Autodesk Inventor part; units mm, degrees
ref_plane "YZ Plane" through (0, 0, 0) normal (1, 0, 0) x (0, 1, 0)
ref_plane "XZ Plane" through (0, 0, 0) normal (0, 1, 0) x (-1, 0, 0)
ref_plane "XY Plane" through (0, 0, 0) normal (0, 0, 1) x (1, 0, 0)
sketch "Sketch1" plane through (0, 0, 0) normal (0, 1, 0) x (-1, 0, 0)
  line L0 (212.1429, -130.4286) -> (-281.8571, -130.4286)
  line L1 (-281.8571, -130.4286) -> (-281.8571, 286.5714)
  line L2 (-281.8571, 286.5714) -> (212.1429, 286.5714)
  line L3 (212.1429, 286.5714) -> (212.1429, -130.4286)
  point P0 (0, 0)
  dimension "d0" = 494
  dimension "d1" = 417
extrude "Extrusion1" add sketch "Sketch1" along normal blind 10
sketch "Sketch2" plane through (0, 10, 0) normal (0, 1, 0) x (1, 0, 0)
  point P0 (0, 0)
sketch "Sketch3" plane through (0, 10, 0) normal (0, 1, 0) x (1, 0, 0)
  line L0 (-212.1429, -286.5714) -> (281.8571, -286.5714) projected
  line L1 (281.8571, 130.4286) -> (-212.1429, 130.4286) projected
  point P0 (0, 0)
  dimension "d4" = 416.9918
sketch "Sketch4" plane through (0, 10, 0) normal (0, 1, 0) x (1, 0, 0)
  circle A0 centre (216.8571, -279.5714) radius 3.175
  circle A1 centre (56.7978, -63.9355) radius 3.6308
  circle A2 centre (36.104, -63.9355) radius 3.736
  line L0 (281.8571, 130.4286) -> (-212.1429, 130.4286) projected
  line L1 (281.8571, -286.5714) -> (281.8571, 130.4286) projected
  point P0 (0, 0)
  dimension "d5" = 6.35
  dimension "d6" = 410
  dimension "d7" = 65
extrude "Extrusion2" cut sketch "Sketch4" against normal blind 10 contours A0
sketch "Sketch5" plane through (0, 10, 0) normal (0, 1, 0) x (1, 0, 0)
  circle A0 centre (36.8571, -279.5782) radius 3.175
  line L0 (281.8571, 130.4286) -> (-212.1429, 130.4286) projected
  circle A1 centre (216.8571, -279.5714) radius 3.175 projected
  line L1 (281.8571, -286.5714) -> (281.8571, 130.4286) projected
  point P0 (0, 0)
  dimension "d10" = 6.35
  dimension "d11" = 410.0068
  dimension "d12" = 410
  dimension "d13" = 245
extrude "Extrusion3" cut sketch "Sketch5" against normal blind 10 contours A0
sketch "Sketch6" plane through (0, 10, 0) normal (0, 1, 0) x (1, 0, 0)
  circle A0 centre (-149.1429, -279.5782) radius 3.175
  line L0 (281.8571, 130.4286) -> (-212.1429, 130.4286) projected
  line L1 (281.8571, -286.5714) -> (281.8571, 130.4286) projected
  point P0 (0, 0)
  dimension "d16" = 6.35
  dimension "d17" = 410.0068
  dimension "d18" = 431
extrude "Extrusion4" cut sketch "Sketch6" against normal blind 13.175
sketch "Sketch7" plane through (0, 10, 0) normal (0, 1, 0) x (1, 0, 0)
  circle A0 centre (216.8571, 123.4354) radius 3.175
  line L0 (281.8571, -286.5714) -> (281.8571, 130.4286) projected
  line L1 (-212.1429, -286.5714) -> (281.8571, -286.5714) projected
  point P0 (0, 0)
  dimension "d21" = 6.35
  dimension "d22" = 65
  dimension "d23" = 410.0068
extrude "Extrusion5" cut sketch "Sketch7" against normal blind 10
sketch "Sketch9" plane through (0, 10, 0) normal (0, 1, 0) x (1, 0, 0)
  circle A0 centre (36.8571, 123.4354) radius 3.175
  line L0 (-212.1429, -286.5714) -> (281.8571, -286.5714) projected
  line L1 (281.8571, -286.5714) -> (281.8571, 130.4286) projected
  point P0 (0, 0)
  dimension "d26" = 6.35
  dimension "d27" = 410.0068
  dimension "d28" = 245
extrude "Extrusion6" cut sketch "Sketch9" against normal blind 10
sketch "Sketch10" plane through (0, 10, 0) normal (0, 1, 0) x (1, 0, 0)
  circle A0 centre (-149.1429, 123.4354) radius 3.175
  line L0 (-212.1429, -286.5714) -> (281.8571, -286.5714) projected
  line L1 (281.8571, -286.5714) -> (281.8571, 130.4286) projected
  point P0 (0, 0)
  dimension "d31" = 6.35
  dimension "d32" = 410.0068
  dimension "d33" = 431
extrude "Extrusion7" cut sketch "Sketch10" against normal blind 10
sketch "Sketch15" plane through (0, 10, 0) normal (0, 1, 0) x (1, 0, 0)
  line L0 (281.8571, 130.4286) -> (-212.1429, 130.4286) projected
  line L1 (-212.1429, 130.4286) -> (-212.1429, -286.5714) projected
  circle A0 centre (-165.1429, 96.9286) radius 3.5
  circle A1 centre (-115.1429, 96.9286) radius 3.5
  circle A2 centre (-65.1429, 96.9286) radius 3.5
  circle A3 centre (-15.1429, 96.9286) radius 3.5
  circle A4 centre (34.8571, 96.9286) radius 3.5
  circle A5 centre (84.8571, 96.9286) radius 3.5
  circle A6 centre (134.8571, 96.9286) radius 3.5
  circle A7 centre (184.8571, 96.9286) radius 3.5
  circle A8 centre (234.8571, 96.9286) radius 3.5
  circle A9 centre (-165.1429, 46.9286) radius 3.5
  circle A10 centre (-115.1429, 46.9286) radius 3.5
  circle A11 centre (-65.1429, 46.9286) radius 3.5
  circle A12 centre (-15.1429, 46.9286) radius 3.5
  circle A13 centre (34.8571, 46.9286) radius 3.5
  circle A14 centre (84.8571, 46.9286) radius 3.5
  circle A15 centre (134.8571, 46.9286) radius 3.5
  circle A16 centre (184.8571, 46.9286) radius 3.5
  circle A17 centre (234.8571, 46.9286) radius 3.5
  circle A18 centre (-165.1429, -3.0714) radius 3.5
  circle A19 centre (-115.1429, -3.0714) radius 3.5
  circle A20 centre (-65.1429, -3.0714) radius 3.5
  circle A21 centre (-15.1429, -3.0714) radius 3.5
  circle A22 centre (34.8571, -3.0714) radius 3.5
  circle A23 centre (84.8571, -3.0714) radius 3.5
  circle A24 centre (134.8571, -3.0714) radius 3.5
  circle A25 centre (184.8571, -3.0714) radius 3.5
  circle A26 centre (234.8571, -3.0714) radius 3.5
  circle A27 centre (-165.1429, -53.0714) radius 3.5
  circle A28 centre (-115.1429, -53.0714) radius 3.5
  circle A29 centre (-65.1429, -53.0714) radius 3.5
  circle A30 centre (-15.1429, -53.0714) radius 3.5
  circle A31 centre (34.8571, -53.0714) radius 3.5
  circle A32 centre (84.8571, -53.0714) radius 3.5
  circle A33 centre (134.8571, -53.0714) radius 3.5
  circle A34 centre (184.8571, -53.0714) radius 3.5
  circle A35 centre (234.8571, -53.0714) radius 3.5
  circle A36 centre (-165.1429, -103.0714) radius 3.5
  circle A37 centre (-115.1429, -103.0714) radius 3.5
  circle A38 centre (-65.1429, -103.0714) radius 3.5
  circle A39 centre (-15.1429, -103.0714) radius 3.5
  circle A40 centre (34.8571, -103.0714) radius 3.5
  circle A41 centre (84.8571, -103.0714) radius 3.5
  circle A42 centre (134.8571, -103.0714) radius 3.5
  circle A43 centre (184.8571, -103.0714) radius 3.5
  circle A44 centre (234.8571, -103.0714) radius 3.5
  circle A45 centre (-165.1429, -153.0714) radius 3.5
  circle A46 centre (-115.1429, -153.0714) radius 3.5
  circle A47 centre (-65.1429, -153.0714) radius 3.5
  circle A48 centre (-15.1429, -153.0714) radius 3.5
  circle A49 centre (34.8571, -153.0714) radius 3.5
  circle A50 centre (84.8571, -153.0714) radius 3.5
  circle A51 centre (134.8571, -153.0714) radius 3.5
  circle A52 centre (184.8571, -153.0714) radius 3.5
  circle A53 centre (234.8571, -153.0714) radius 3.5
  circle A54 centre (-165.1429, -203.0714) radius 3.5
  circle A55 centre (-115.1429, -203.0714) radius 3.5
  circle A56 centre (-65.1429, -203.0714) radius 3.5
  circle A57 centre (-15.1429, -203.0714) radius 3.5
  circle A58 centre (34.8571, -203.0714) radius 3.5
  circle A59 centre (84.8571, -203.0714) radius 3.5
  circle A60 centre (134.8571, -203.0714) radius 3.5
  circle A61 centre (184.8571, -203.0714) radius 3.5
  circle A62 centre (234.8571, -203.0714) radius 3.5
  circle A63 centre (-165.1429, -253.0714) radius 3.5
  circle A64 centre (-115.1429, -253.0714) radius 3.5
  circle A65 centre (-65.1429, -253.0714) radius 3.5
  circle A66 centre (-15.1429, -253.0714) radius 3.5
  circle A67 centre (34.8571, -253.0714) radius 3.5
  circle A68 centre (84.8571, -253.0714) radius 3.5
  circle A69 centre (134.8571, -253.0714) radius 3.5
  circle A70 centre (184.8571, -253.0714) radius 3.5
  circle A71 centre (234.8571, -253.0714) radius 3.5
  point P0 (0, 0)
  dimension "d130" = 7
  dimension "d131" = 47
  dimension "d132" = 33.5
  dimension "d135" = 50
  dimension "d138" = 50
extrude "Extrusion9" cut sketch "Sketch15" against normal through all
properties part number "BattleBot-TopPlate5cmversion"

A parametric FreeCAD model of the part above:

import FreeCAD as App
import Part
import Sketcher


def add_polygon(sketch, points):
    """Adds a closed chain of lines whose ends are joined by coincident constraints."""
    first, n = sketch.GeometryCount, len(points)
    for a, b in zip(points, points[1:] + points[:1]):
        sketch.addGeometry(Part.LineSegment(App.Vector(*a, 0), App.Vector(*b, 0)), False)
    for i in range(n):
        sketch.addConstraint(Sketcher.Constraint("Coincident", first + i, 2, first + (i + 1) % n, 1))

doc = App.newDocument("Part")
body = doc.addObject("PartDesign::Body", "Body")

# Sketch on XZ plane
sketch1 = body.newObject("Sketcher::SketchObject", "Sketch")
sketch1.AttachmentSupport = (doc.getObject("XZ_Plane"), [""])
sketch1.MapMode = "FlatFace"
add_polygon(sketch1, [(282, -130), (-212, -130), (-212, 287), (282, 287)])  # lines 0-3
sketch1.addConstraint(Sketcher.Constraint("Horizontal", 0))
sketch1.addConstraint(Sketcher.Constraint("Vertical", 1))
sketch1.addConstraint(Sketcher.Constraint("Horizontal", 2))
sketch1.addConstraint(Sketcher.Constraint("Vertical", 3))
sketch1.addConstraint(Sketcher.Constraint("DistanceX", 0, 2, 0, 1, 494.0))
sketch1.addConstraint(Sketcher.Constraint("DistanceY", 1, 1, 1, 2, 417.0))
sketch1.addConstraint(Sketcher.Constraint("DistanceX", 0, 2, -1, 1, 212.143))
sketch1.addConstraint(Sketcher.Constraint("DistanceY", 0, 2, -1, 1, 130.4286))
pad1 = body.newObject("PartDesign::Pad", "Pad")
pad1.Profile = sketch1
pad1.Length = 10
pad1.Reversed = True

# Sketch on XZ plane
sketch2 = body.newObject("Sketcher::SketchObject", "Sketch001")
sketch2.AttachmentSupport = (doc.getObject("XZ_Plane"), [""])
sketch2.MapMode = "FlatFace"
sketch2.AttachmentOffset = App.Placement(App.Vector(0, 0, -10), App.Rotation())
sketch2.addGeometry(Part.Circle(App.Vector(216.9, 279.6, 0), App.Vector(0, 0, 1), 3.2), False)
sketch2.addConstraint(Sketcher.Constraint("Diameter", 0, 6.35))
sketch2.addConstraint(Sketcher.Constraint("DistanceX", -1, 1, 0, 3, 216.857))
sketch2.addConstraint(Sketcher.Constraint("DistanceY", -1, 1, 0, 3, 279.5714))
pocket1 = body.newObject("PartDesign::Pocket", "Pocket")
pocket1.Profile = sketch2
pocket1.Length = 10
pocket1.Reversed = True

# Sketch on XZ plane
sketch3 = body.newObject("Sketcher::SketchObject", "Sketch002")
sketch3.AttachmentSupport = (doc.getObject("XZ_Plane"), [""])
sketch3.MapMode = "FlatFace"
sketch3.AttachmentOffset = App.Placement(App.Vector(0, 0, -10), App.Rotation())
sketch3.addGeometry(Part.Circle(App.Vector(36.9, 279.6, 0), App.Vector(0, 0, 1), 3.2), False)
sketch3.addConstraint(Sketcher.Constraint("Diameter", 0, 6.35))
sketch3.addConstraint(Sketcher.Constraint("DistanceX", -1, 1, 0, 3, 36.857))
sketch3.addConstraint(Sketcher.Constraint("DistanceY", -1, 1, 0, 3, 279.5782))
pocket2 = body.newObject("PartDesign::Pocket", "Pocket001")
pocket2.Profile = sketch3
pocket2.Length = 10
pocket2.Reversed = True

# Sketch on XZ plane
sketch4 = body.newObject("Sketcher::SketchObject", "Sketch003")
sketch4.AttachmentSupport = (doc.getObject("XZ_Plane"), [""])
sketch4.MapMode = "FlatFace"
sketch4.AttachmentOffset = App.Placement(App.Vector(0, 0, -10), App.Rotation())
sketch4.addGeometry(Part.Circle(App.Vector(-149.1, 279.6, 0), App.Vector(0, 0, 1), 3.2), False)
sketch4.addConstraint(Sketcher.Constraint("Diameter", 0, 6.35))
sketch4.addConstraint(Sketcher.Constraint("DistanceX", 0, 3, -1, 1, 149.143))
sketch4.addConstraint(Sketcher.Constraint("DistanceY", -1, 1, 0, 3, 279.5782))
pocket3 = body.newObject("PartDesign::Pocket", "Pocket002")
pocket3.Profile = sketch4
pocket3.Length = 13.175
pocket3.Reversed = True

# Sketch on XZ plane
sketch5 = body.newObject("Sketcher::SketchObject", "Sketch004")
sketch5.AttachmentSupport = (doc.getObject("XZ_Plane"), [""])
sketch5.MapMode = "FlatFace"
sketch5.AttachmentOffset = App.Placement(App.Vector(0, 0, -10), App.Rotation())
sketch5.addGeometry(Part.Circle(App.Vector(216.9, -123.4, 0), App.Vector(0, 0, 1), 3.2), False)
sketch5.addConstraint(Sketcher.Constraint("Diameter", 0, 6.35))
sketch5.addConstraint(Sketcher.Constraint("DistanceX", -1, 1, 0, 3, 216.857))
sketch5.addConstraint(Sketcher.Constraint("DistanceY", 0, 3, -1, 1, 123.4354))
pocket4 = body.newObject("PartDesign::Pocket", "Pocket003")
pocket4.Profile = sketch5
pocket4.Length = 10
pocket4.Reversed = True

# Sketch on XZ plane
sketch6 = body.newObject("Sketcher::SketchObject", "Sketch005")
sketch6.AttachmentSupport = (doc.getObject("XZ_Plane"), [""])
sketch6.MapMode = "FlatFace"
sketch6.AttachmentOffset = App.Placement(App.Vector(0, 0, -10), App.Rotation())
sketch6.addGeometry(Part.Circle(App.Vector(36.9, -123.4, 0), App.Vector(0, 0, 1), 3.2), False)
sketch6.addConstraint(Sketcher.Constraint("Diameter", 0, 6.35))
sketch6.addConstraint(Sketcher.Constraint("DistanceX", -1, 1, 0, 3, 36.857))
sketch6.addConstraint(Sketcher.Constraint("DistanceY", 0, 3, -1, 1, 123.4354))
pocket5 = body.newObject("PartDesign::Pocket", "Pocket004")
pocket5.Profile = sketch6
pocket5.Length = 10
pocket5.Reversed = True

# Sketch on XZ plane
sketch7 = body.newObject("Sketcher::SketchObject", "Sketch006")
sketch7.AttachmentSupport = (doc.getObject("XZ_Plane"), [""])
sketch7.MapMode = "FlatFace"
sketch7.AttachmentOffset = App.Placement(App.Vector(0, 0, -10), App.Rotation())
sketch7.addGeometry(Part.Circle(App.Vector(-149.1, -123.4, 0), App.Vector(0, 0, 1), 3.2), False)
sketch7.addConstraint(Sketcher.Constraint("Diameter", 0, 6.35))
sketch7.addConstraint(Sketcher.Constraint("DistanceX", 0, 3, -1, 1, 149.143))
sketch7.addConstraint(Sketcher.Constraint("DistanceY", 0, 3, -1, 1, 123.4354))
pocket6 = body.newObject("PartDesign::Pocket", "Pocket005")
pocket6.Profile = sketch7
pocket6.Length = 10
pocket6.Reversed = True

# Sketch on XZ plane
sketch8 = body.newObject("Sketcher::SketchObject", "Sketch007")
sketch8.AttachmentSupport = (doc.getObject("XZ_Plane"), [""])
sketch8.MapMode = "FlatFace"
sketch8.AttachmentOffset = App.Placement(App.Vector(0, 0, -10), App.Rotation())
sketch8.addGeometry(Part.Circle(App.Vector(-165.1, -96.9, 0), App.Vector(0, 0, 1), 3.5), False)
sketch8.addGeometry(Part.Circle(App.Vector(-115.1, -96.9, 0), App.Vector(0, 0, 1), 3.5), False)
sketch8.addGeometry(Part.Circle(App.Vector(-65.1, -96.9, 0), App.Vector(0, 0, 1), 3.5), False)
sketch8.addGeometry(Part.Circle(App.Vector(-15.1, -96.9, 0), App.Vector(0, 0, 1), 3.5), False)
sketch8.addGeometry(Part.Circle(App.Vector(34.9, -96.9, 0), App.Vector(0, 0, 1), 3.5), False)
sketch8.addGeometry(Part.Circle(App.Vector(84.9, -96.9, 0), App.Vector(0, 0, 1), 3.5), False)
sketch8.addGeometry(Part.Circle(App.Vector(134.9, -96.9, 0), App.Vector(0, 0, 1), 3.5), False)
sketch8.addGeometry(Part.Circle(App.Vector(184.9, -96.9, 0), App.Vector(0, 0, 1), 3.5), False)
sketch8.addGeometry(Part.Circle(App.Vector(234.9, -96.9, 0), App.Vector(0, 0, 1), 3.5), False)
sketch8.addGeometry(Part.Circle(App.Vector(-165.1, -46.9, 0), App.Vector(0, 0, 1), 3.5), False)
sketch8.addGeometry(Part.Circle(App.Vector(-115.1, -46.9, 0), App.Vector(0, 0, 1), 3.5), False)
sketch8.addGeometry(Part.Circle(App.Vector(-65.1, -46.9, 0), App.Vector(0, 0, 1), 3.5), False)
sketch8.addGeometry(Part.Circle(App.Vector(-15.1, -46.9, 0), App.Vector(0, 0, 1), 3.5), False)
sketch8.addGeometry(Part.Circle(App.Vector(34.9, -46.9, 0), App.Vector(0, 0, 1), 3.5), False)
sketch8.addGeometry(Part.Circle(App.Vector(84.9, -46.9, 0), App.Vector(0, 0, 1), 3.5), False)
sketch8.addGeometry(Part.Circle(App.Vector(134.9, -46.9, 0), App.Vector(0, 0, 1), 3.5), False)
sketch8.addGeometry(Part.Circle(App.Vector(184.9, -46.9, 0), App.Vector(0, 0, 1), 3.5), False)
sketch8.addGeometry(Part.Circle(App.Vector(234.9, -46.9, 0), App.Vector(0, 0, 1), 3.5), False)
sketch8.addGeometry(Part.Circle(App.Vector(-165.1, 3.1, 0), App.Vector(0, 0, 1), 3.5), False)
sketch8.addGeometry(Part.Circle(App.Vector(-115.1, 3.1, 0), App.Vector(0, 0, 1), 3.5), False)
sketch8.addGeometry(Part.Circle(App.Vector(-65.1, 3.1, 0), App.Vector(0, 0, 1), 3.5), False)
sketch8.addGeometry(Part.Circle(App.Vector(-15.1, 3.1, 0), App.Vector(0, 0, 1), 3.5), False)
sketch8.addGeometry(Part.Circle(App.Vector(34.9, 3.1, 0), App.Vector(0, 0, 1), 3.5), False)
sketch8.addGeometry(Part.Circle(App.Vector(84.9, 3.1, 0), App.Vector(0, 0, 1), 3.5), False)
sketch8.addGeometry(Part.Circle(App.Vector(134.9, 3.1, 0), App.Vector(0, 0, 1), 3.5), False)
sketch8.addGeometry(Part.Circle(App.Vector(184.9, 3.1, 0), App.Vector(0, 0, 1), 3.5), False)
sketch8.addGeometry(Part.Circle(App.Vector(234.9, 3.1, 0), App.Vector(0, 0, 1), 3.5), False)
sketch8.addGeometry(Part.Circle(App.Vector(-165.1, 53.1, 0), App.Vector(0, 0, 1), 3.5), False)
sketch8.addGeometry(Part.Circle(App.Vector(-115.1, 53.1, 0), App.Vector(0, 0, 1), 3.5), False)
sketch8.addGeometry(Part.Circle(App.Vector(-65.1, 53.1, 0), App.Vector(0, 0, 1), 3.5), False)
sketch8.addGeometry(Part.Circle(App.Vector(-15.1, 53.1, 0), App.Vector(0, 0, 1), 3.5), False)
sketch8.addGeometry(Part.Circle(App.Vector(34.9, 53.1, 0), App.Vector(0, 0, 1), 3.5), False)
sketch8.addGeometry(Part.Circle(App.Vector(84.9, 53.1, 0), App.Vector(0, 0, 1), 3.5), False)
sketch8.addGeometry(Part.Circle(App.Vector(134.9, 53.1, 0), App.Vector(0, 0, 1), 3.5), False)
sketch8.addGeometry(Part.Circle(App.Vector(184.9, 53.1, 0), App.Vector(0, 0, 1), 3.5), False)
sketch8.addGeometry(Part.Circle(App.Vector(234.9, 53.1, 0), App.Vector(0, 0, 1), 3.5), False)
sketch8.addGeometry(Part.Circle(App.Vector(-165.1, 103.1, 0), App.Vector(0, 0, 1), 3.5), False)
sketch8.addGeometry(Part.Circle(App.Vector(-115.1, 103.1, 0), App.Vector(0, 0, 1), 3.5), False)
sketch8.addGeometry(Part.Circle(App.Vector(-65.1, 103.1, 0), App.Vector(0, 0, 1), 3.5), False)
sketch8.addGeometry(Part.Circle(App.Vector(-15.1, 103.1, 0), App.Vector(0, 0, 1), 3.5), False)
sketch8.addGeometry(Part.Circle(App.Vector(34.9, 103.1, 0), App.Vector(0, 0, 1), 3.5), False)
sketch8.addGeometry(Part.Circle(App.Vector(84.9, 103.1, 0), App.Vector(0, 0, 1), 3.5), False)
sketch8.addGeometry(Part.Circle(App.Vector(134.9, 103.1, 0), App.Vector(0, 0, 1), 3.5), False)
sketch8.addGeometry(Part.Circle(App.Vector(184.9, 103.1, 0), App.Vector(0, 0, 1), 3.5), False)
sketch8.addGeometry(Part.Circle(App.Vector(234.9, 103.1, 0), App.Vector(0, 0, 1), 3.5), False)
sketch8.addGeometry(Part.Circle(App.Vector(-165.1, 153.1, 0), App.Vector(0, 0, 1), 3.5), False)
sketch8.addGeometry(Part.Circle(App.Vector(-115.1, 153.1, 0), App.Vector(0, 0, 1), 3.5), False)
sketch8.addGeometry(Part.Circle(App.Vector(-65.1, 153.1, 0), App.Vector(0, 0, 1), 3.5), False)
sketch8.addGeometry(Part.Circle(App.Vector(-15.1, 153.1, 0), App.Vector(0, 0, 1), 3.5), False)
sketch8.addGeometry(Part.Circle(App.Vector(34.9, 153.1, 0), App.Vector(0, 0, 1), 3.5), False)
sketch8.addGeometry(Part.Circle(App.Vector(84.9, 153.1, 0), App.Vector(0, 0, 1), 3.5), False)
sketch8.addGeometry(Part.Circle(App.Vector(134.9, 153.1, 0), App.Vector(0, 0, 1), 3.5), False)
sketch8.addGeometry(Part.Circle(App.Vector(184.9, 153.1, 0), App.Vector(0, 0, 1), 3.5), False)
sketch8.addGeometry(Part.Circle(App.Vector(234.9, 153.1, 0), App.Vector(0, 0, 1), 3.5), False)
sketch8.addGeometry(Part.Circle(App.Vector(-165.1, 203.1, 0), App.Vector(0, 0, 1), 3.5), False)
sketch8.addGeometry(Part.Circle(App.Vector(-115.1, 203.1, 0), App.Vector(0, 0, 1), 3.5), False)
sketch8.addGeometry(Part.Circle(App.Vector(-65.1, 203.1, 0), App.Vector(0, 0, 1), 3.5), False)
sketch8.addGeometry(Part.Circle(App.Vector(-15.1, 203.1, 0), App.Vector(0, 0, 1), 3.5), False)
sketch8.addGeometry(Part.Circle(App.Vector(34.9, 203.1, 0), App.Vector(0, 0, 1), 3.5), False)
sketch8.addGeometry(Part.Circle(App.Vector(84.9, 203.1, 0), App.Vector(0, 0, 1), 3.5), False)
sketch8.addGeometry(Part.Circle(App.Vector(134.9, 203.1, 0), App.Vector(0, 0, 1), 3.5), False)
sketch8.addGeometry(Part.Circle(App.Vector(184.9, 203.1, 0), App.Vector(0, 0, 1), 3.5), False)
sketch8.addGeometry(Part.Circle(App.Vector(234.9, 203.1, 0), App.Vector(0, 0, 1), 3.5), False)
sketch8.addGeometry(Part.Circle(App.Vector(-165.1, 253.1, 0), App.Vector(0, 0, 1), 3.5), False)
sketch8.addGeometry(Part.Circle(App.Vector(-115.1, 253.1, 0), App.Vector(0, 0, 1), 3.5), False)
sketch8.addGeometry(Part.Circle(App.Vector(-65.1, 253.1, 0), App.Vector(0, 0, 1), 3.5), False)
sketch8.addGeometry(Part.Circle(App.Vector(-15.1, 253.1, 0), App.Vector(0, 0, 1), 3.5), False)
sketch8.addGeometry(Part.Circle(App.Vector(34.9, 253.1, 0), App.Vector(0, 0, 1), 3.5), False)
sketch8.addGeometry(Part.Circle(App.Vector(84.9, 253.1, 0), App.Vector(0, 0, 1), 3.5), False)
sketch8.addGeometry(Part.Circle(App.Vector(134.9, 253.1, 0), App.Vector(0, 0, 1), 3.5), False)
sketch8.addGeometry(Part.Circle(App.Vector(184.9, 253.1, 0), App.Vector(0, 0, 1), 3.5), False)
sketch8.addGeometry(Part.Circle(App.Vector(234.9, 253.1, 0), App.Vector(0, 0, 1), 3.5), False)
sketch8.addConstraint(Sketcher.Constraint("Equal", 0, 1))
sketch8.addConstraint(Sketcher.Constraint("Equal", 1, 2))
sketch8.addConstraint(Sketcher.Constraint("Equal", 2, 3))
sketch8.addConstraint(Sketcher.Constraint("Equal", 3, 4))
sketch8.addConstraint(Sketcher.Constraint("Equal", 4, 5))
sketch8.addConstraint(Sketcher.Constraint("Equal", 5, 6))
sketch8.addConstraint(Sketcher.Constraint("Equal", 6, 7))
sketch8.addConstraint(Sketcher.Constraint("Equal", 7, 8))
sketch8.addConstraint(Sketcher.Constraint("Equal", 8, 9))
sketch8.addConstraint(Sketcher.Constraint("Equal", 9, 10))
sketch8.addConstraint(Sketcher.Constraint("Equal", 10, 11))
sketch8.addConstraint(Sketcher.Constraint("Equal", 11, 12))
sketch8.addConstraint(Sketcher.Constraint("Equal", 12, 13))
sketch8.addConstraint(Sketcher.Constraint("Equal", 13, 14))
sketch8.addConstraint(Sketcher.Constraint("Equal", 14, 15))
sketch8.addConstraint(Sketcher.Constraint("Equal", 15, 16))
sketch8.addConstraint(Sketcher.Constraint("Equal", 16, 17))
sketch8.addConstraint(Sketcher.Constraint("Equal", 17, 18))
sketch8.addConstraint(Sketcher.Constraint("Equal", 18, 19))
sketch8.addConstraint(Sketcher.Constraint("Equal", 19, 20))
sketch8.addConstraint(Sketcher.Constraint("Equal", 20, 21))
sketch8.addConstraint(Sketcher.Constraint("Equal", 21, 22))
sketch8.addConstraint(Sketcher.Constraint("Equal", 22, 23))
sketch8.addConstraint(Sketcher.Constraint("Equal", 23, 24))
sketch8.addConstraint(Sketcher.Constraint("Equal", 24, 25))
sketch8.addConstraint(Sketcher.Constraint("Equal", 25, 26))
sketch8.addConstraint(Sketcher.Constraint("Equal", 26, 27))
sketch8.addConstraint(Sketcher.Constraint("Equal", 27, 28))
sketch8.addConstraint(Sketcher.Constraint("Equal", 28, 29))
sketch8.addConstraint(Sketcher.Constraint("Equal", 29, 30))
sketch8.addConstraint(Sketcher.Constraint("Equal", 30, 31))
sketch8.addConstraint(Sketcher.Constraint("Equal", 31, 32))
sketch8.addConstraint(Sketcher.Constraint("Equal", 32, 33))
sketch8.addConstraint(Sketcher.Constraint("Equal", 33, 34))
sketch8.addConstraint(Sketcher.Constraint("Equal", 34, 35))
sketch8.addConstraint(Sketcher.Constraint("Equal", 35, 36))
sketch8.addConstraint(Sketcher.Constraint("Equal", 36, 37))
sketch8.addConstraint(Sketcher.Constraint("Equal", 37, 38))
sketch8.addConstraint(Sketcher.Constraint("Equal", 38, 39))
sketch8.addConstraint(Sketcher.Constraint("Equal", 39, 40))
sketch8.addConstraint(Sketcher.Constraint("Equal", 40, 41))
sketch8.addConstraint(Sketcher.Constraint("Equal", 41, 42))
sketch8.addConstraint(Sketcher.Constraint("Equal", 42, 43))
sketch8.addConstraint(Sketcher.Constraint("Equal", 43, 44))
sketch8.addConstraint(Sketcher.Constraint("Equal", 44, 45))
sketch8.addConstraint(Sketcher.Constraint("Equal", 45, 46))
sketch8.addConstraint(Sketcher.Constraint("Equal", 46, 47))
sketch8.addConstraint(Sketcher.Constraint("Equal", 47, 48))
sketch8.addConstraint(Sketcher.Constraint("Equal", 48, 49))
sketch8.addConstraint(Sketcher.Constraint("Equal", 49, 50))
sketch8.addConstraint(Sketcher.Constraint("Equal", 50, 51))
sketch8.addConstraint(Sketcher.Constraint("Equal", 51, 52))
sketch8.addConstraint(Sketcher.Constraint("Equal", 52, 53))
sketch8.addConstraint(Sketcher.Constraint("Equal", 53, 54))
sketch8.addConstraint(Sketcher.Constraint("Equal", 54, 55))
sketch8.addConstraint(Sketcher.Constraint("Equal", 55, 56))
sketch8.addConstraint(Sketcher.Constraint("Equal", 56, 57))
sketch8.addConstraint(Sketcher.Constraint("Equal", 57, 58))
sketch8.addConstraint(Sketcher.Constraint("Equal", 58, 59))
sketch8.addConstraint(Sketcher.Constraint("Equal", 59, 60))
sketch8.addConstraint(Sketcher.Constraint("Equal", 60, 61))
sketch8.addConstraint(Sketcher.Constraint("Equal", 61, 62))
sketch8.addConstraint(Sketcher.Constraint("Equal", 62, 63))
sketch8.addConstraint(Sketcher.Constraint("Equal", 63, 64))
sketch8.addConstraint(Sketcher.Constraint("Equal", 64, 65))
sketch8.addConstraint(Sketcher.Constraint("Equal", 65, 66))
sketch8.addConstraint(Sketcher.Constraint("Equal", 66, 67))
sketch8.addConstraint(Sketcher.Constraint("Equal", 67, 68))
sketch8.addConstraint(Sketcher.Constraint("Equal", 68, 69))
sketch8.addConstraint(Sketcher.Constraint("Equal", 69, 70))
sketch8.addConstraint(Sketcher.Constraint("Equal", 70, 71))
sketch8.addConstraint(Sketcher.Constraint("Horizontal", 0, 3, 1, 3))
sketch8.addConstraint(Sketcher.Constraint("Horizontal", 1, 3, 2, 3))
sketch8.addConstraint(Sketcher.Constraint("Horizontal", 2, 3, 3, 3))
sketch8.addConstraint(Sketcher.Constraint("Horizontal", 3, 3, 4, 3))
sketch8.addConstraint(Sketcher.Constraint("Horizontal", 4, 3, 5, 3))
sketch8.addConstraint(Sketcher.Constraint("Horizontal", 5, 3, 6, 3))
sketch8.addConstraint(Sketcher.Constraint("Horizontal", 6, 3, 7, 3))
sketch8.addConstraint(Sketcher.Constraint("Horizontal", 7, 3, 8, 3))
sketch8.addConstraint(Sketcher.Constraint("Horizontal", 9, 3, 10, 3))
sketch8.addConstraint(Sketcher.Constraint("Horizontal", 10, 3, 11, 3))
sketch8.addConstraint(Sketcher.Constraint("Horizontal", 11, 3, 12, 3))
sketch8.addConstraint(Sketcher.Constraint("Horizontal", 12, 3, 13, 3))
sketch8.addConstraint(Sketcher.Constraint("Horizontal", 13, 3, 14, 3))
sketch8.addConstraint(Sketcher.Constraint("Horizontal", 14, 3, 15, 3))
sketch8.addConstraint(Sketcher.Constraint("Horizontal", 15, 3, 16, 3))
sketch8.addConstraint(Sketcher.Constraint("Horizontal", 16, 3, 17, 3))
sketch8.addConstraint(Sketcher.Constraint("Horizontal", 18, 3, 19, 3))
sketch8.addConstraint(Sketcher.Constraint("Horizontal", 19, 3, 20, 3))
sketch8.addConstraint(Sketcher.Constraint("Horizontal", 20, 3, 21, 3))
sketch8.addConstraint(Sketcher.Constraint("Horizontal", 21, 3, 22, 3))
sketch8.addConstraint(Sketcher.Constraint("Horizontal", 22, 3, 23, 3))
sketch8.addConstraint(Sketcher.Constraint("Horizontal", 23, 3, 24, 3))
sketch8.addConstraint(Sketcher.Constraint("Horizontal", 24, 3, 25, 3))
sketch8.addConstraint(Sketcher.Constraint("Horizontal", 25, 3, 26, 3))
sketch8.addConstraint(Sketcher.Constraint("Horizontal", 27, 3, 28, 3))
sketch8.addConstraint(Sketcher.Constraint("Horizontal", 28, 3, 29, 3))
sketch8.addConstraint(Sketcher.Constraint("Horizontal", 29, 3, 30, 3))
sketch8.addConstraint(Sketcher.Constraint("Horizontal", 30, 3, 31, 3))
sketch8.addConstraint(Sketcher.Constraint("Horizontal", 31, 3, 32, 3))
sketch8.addConstraint(Sketcher.Constraint("Horizontal", 32, 3, 33, 3))
sketch8.addConstraint(Sketcher.Constraint("Horizontal", 33, 3, 34, 3))
sketch8.addConstraint(Sketcher.Constraint("Horizontal", 34, 3, 35, 3))
sketch8.addConstraint(Sketcher.Constraint("Horizontal", 36, 3, 37, 3))
sketch8.addConstraint(Sketcher.Constraint("Horizontal", 37, 3, 38, 3))
sketch8.addConstraint(Sketcher.Constraint("Horizontal", 38, 3, 39, 3))
sketch8.addConstraint(Sketcher.Constraint("Horizontal", 39, 3, 40, 3))
sketch8.addConstraint(Sketcher.Constraint("Horizontal", 40, 3, 41, 3))
sketch8.addConstraint(Sketcher.Constraint("Horizontal", 41, 3, 42, 3))
sketch8.addConstraint(Sketcher.Constraint("Horizontal", 42, 3, 43, 3))
sketch8.addConstraint(Sketcher.Constraint("Horizontal", 43, 3, 44, 3))
sketch8.addConstraint(Sketcher.Constraint("Horizontal", 45, 3, 46, 3))
sketch8.addConstraint(Sketcher.Constraint("Horizontal", 46, 3, 47, 3))
sketch8.addConstraint(Sketcher.Constraint("Horizontal", 47, 3, 48, 3))
sketch8.addConstraint(Sketcher.Constraint("Horizontal", 48, 3, 49, 3))
sketch8.addConstraint(Sketcher.Constraint("Horizontal", 49, 3, 50, 3))
sketch8.addConstraint(Sketcher.Constraint("Horizontal", 50, 3, 51, 3))
sketch8.addConstraint(Sketcher.Constraint("Horizontal", 51, 3, 52, 3))
sketch8.addConstraint(Sketcher.Constraint("Horizontal", 52, 3, 53, 3))
sketch8.addConstraint(Sketcher.Constraint("Horizontal", 54, 3, 55, 3))
sketch8.addConstraint(Sketcher.Constraint("Horizontal", 55, 3, 56, 3))
sketch8.addConstraint(Sketcher.Constraint("Horizontal", 56, 3, 57, 3))
sketch8.addConstraint(Sketcher.Constraint("Horizontal", 57, 3, 58, 3))
sketch8.addConstraint(Sketcher.Constraint("Horizontal", 58, 3, 59, 3))
sketch8.addConstraint(Sketcher.Constraint("Horizontal", 59, 3, 60, 3))
sketch8.addConstraint(Sketcher.Constraint("Horizontal", 60, 3, 61, 3))
sketch8.addConstraint(Sketcher.Constraint("Horizontal", 61, 3, 62, 3))
sketch8.addConstraint(Sketcher.Constraint("Horizontal", 63, 3, 64, 3))
sketch8.addConstraint(Sketcher.Constraint("Horizontal", 64, 3, 65, 3))
sketch8.addConstraint(Sketcher.Constraint("Horizontal", 65, 3, 66, 3))
sketch8.addConstraint(Sketcher.Constraint("Horizontal", 66, 3, 67, 3))
sketch8.addConstraint(Sketcher.Constraint("Horizontal", 67, 3, 68, 3))
sketch8.addConstraint(Sketcher.Constraint("Horizontal", 68, 3, 69, 3))
sketch8.addConstraint(Sketcher.Constraint("Horizontal", 69, 3, 70, 3))
sketch8.addConstraint(Sketcher.Constraint("Horizontal", 70, 3, 71, 3))
sketch8.addConstraint(Sketcher.Constraint("Vertical", 0, 3, 9, 3))
sketch8.addConstraint(Sketcher.Constraint("Vertical", 1, 3, 10, 3))
sketch8.addConstraint(Sketcher.Constraint("Vertical", 2, 3, 11, 3))
sketch8.addConstraint(Sketcher.Constraint("Vertical", 3, 3, 12, 3))
sketch8.addConstraint(Sketcher.Constraint("Vertical", 4, 3, 13, 3))
sketch8.addConstraint(Sketcher.Constraint("Vertical", 5, 3, 14, 3))
sketch8.addConstraint(Sketcher.Constraint("Vertical", 6, 3, 15, 3))
sketch8.addConstraint(Sketcher.Constraint("Vertical", 7, 3, 16, 3))
sketch8.addConstraint(Sketcher.Constraint("Vertical", 8, 3, 17, 3))
sketch8.addConstraint(Sketcher.Constraint("Vertical", 9, 3, 18, 3))
sketch8.addConstraint(Sketcher.Constraint("Vertical", 10, 3, 19, 3))
sketch8.addConstraint(Sketcher.Constraint("Vertical", 11, 3, 20, 3))
sketch8.addConstraint(Sketcher.Constraint("Vertical", 12, 3, 21, 3))
sketch8.addConstraint(Sketcher.Constraint("Vertical", 13, 3, 22, 3))
sketch8.addConstraint(Sketcher.Constraint("Vertical", 14, 3, 23, 3))
sketch8.addConstraint(Sketcher.Constraint("Vertical", 15, 3, 24, 3))
sketch8.addConstraint(Sketcher.Constraint("Vertical", 16, 3, 25, 3))
sketch8.addConstraint(Sketcher.Constraint("Vertical", 17, 3, 26, 3))
sketch8.addConstraint(Sketcher.Constraint("Vertical", 18, 3, 27, 3))
sketch8.addConstraint(Sketcher.Constraint("Vertical", 19, 3, 28, 3))
sketch8.addConstraint(Sketcher.Constraint("Vertical", 20, 3, 29, 3))
sketch8.addConstraint(Sketcher.Constraint("Vertical", 21, 3, 30, 3))
sketch8.addConstraint(Sketcher.Constraint("Vertical", 22, 3, 31, 3))
sketch8.addConstraint(Sketcher.Constraint("Vertical", 23, 3, 32, 3))
sketch8.addConstraint(Sketcher.Constraint("Vertical", 24, 3, 33, 3))
sketch8.addConstraint(Sketcher.Constraint("Vertical", 25, 3, 34, 3))
sketch8.addConstraint(Sketcher.Constraint("Vertical", 26, 3, 35, 3))
sketch8.addConstraint(Sketcher.Constraint("Vertical", 27, 3, 36, 3))
sketch8.addConstraint(Sketcher.Constraint("Vertical", 28, 3, 37, 3))
sketch8.addConstraint(Sketcher.Constraint("Vertical", 29, 3, 38, 3))
sketch8.addConstraint(Sketcher.Constraint("Vertical", 30, 3, 39, 3))
sketch8.addConstraint(Sketcher.Constraint("Vertical", 31, 3, 40, 3))
sketch8.addConstraint(Sketcher.Constraint("Vertical", 32, 3, 41, 3))
sketch8.addConstraint(Sketcher.Constraint("Vertical", 33, 3, 42, 3))
sketch8.addConstraint(Sketcher.Constraint("Vertical", 34, 3, 43, 3))
sketch8.addConstraint(Sketcher.Constraint("Vertical", 35, 3, 44, 3))
sketch8.addConstraint(Sketcher.Constraint("Vertical", 36, 3, 45, 3))
sketch8.addConstraint(Sketcher.Constraint("Vertical", 37, 3, 46, 3))
sketch8.addConstraint(Sketcher.Constraint("Vertical", 38, 3, 47, 3))
sketch8.addConstraint(Sketcher.Constraint("Vertical", 39, 3, 48, 3))
sketch8.addConstraint(Sketcher.Constraint("Vertical", 40, 3, 49, 3))
sketch8.addConstraint(Sketcher.Constraint("Vertical", 41, 3, 50, 3))
sketch8.addConstraint(Sketcher.Constraint("Vertical", 42, 3, 51, 3))
sketch8.addConstraint(Sketcher.Constraint("Vertical", 43, 3, 52, 3))
sketch8.addConstraint(Sketcher.Constraint("Vertical", 44, 3, 53, 3))
sketch8.addConstraint(Sketcher.Constraint("Vertical", 45, 3, 54, 3))
sketch8.addConstraint(Sketcher.Constraint("Vertical", 46, 3, 55, 3))
sketch8.addConstraint(Sketcher.Constraint("Vertical", 47, 3, 56, 3))
sketch8.addConstraint(Sketcher.Constraint("Vertical", 48, 3, 57, 3))
sketch8.addConstraint(Sketcher.Constraint("Vertical", 49, 3, 58, 3))
sketch8.addConstraint(Sketcher.Constraint("Vertical", 50, 3, 59, 3))
sketch8.addConstraint(Sketcher.Constraint("Vertical", 51, 3, 60, 3))
sketch8.addConstraint(Sketcher.Constraint("Vertical", 52, 3, 61, 3))
sketch8.addConstraint(Sketcher.Constraint("Vertical", 53, 3, 62, 3))
sketch8.addConstraint(Sketcher.Constraint("Vertical", 54, 3, 63, 3))
sketch8.addConstraint(Sketcher.Constraint("Vertical", 55, 3, 64, 3))
sketch8.addConstraint(Sketcher.Constraint("Vertical", 56, 3, 65, 3))
sketch8.addConstraint(Sketcher.Constraint("Vertical", 57, 3, 66, 3))
sketch8.addConstraint(Sketcher.Constraint("Vertical", 58, 3, 67, 3))
sketch8.addConstraint(Sketcher.Constraint("Vertical", 59, 3, 68, 3))
sketch8.addConstraint(Sketcher.Constraint("Vertical", 60, 3, 69, 3))
sketch8.addConstraint(Sketcher.Constraint("Vertical", 61, 3, 70, 3))
sketch8.addConstraint(Sketcher.Constraint("Vertical", 62, 3, 71, 3))
sketch8.addConstraint(Sketcher.Constraint("Diameter", 0, 7.0))
sketch8.addConstraint(Sketcher.Constraint("DistanceX", 0, 3, -1, 1, 165.143))
sketch8.addConstraint(Sketcher.Constraint("DistanceX", 1, 3, -1, 1, 115.143))
sketch8.addConstraint(Sketcher.Constraint("DistanceX", 2, 3, -1, 1, 65.143))
sketch8.addConstraint(Sketcher.Constraint("DistanceX", 3, 3, -1, 1, 15.143))
sketch8.addConstraint(Sketcher.Constraint("DistanceX", -1, 1, 4, 3, 34.857))
sketch8.addConstraint(Sketcher.Constraint("DistanceX", -1, 1, 5, 3, 84.857))
sketch8.addConstraint(Sketcher.Constraint("DistanceX", -1, 1, 6, 3, 134.857))
sketch8.addConstraint(Sketcher.Constraint("DistanceX", -1, 1, 7, 3, 184.857))
sketch8.addConstraint(Sketcher.Constraint("DistanceX", -1, 1, 8, 3, 234.857))
sketch8.addConstraint(Sketcher.Constraint("DistanceY", 0, 3, -1, 1, 96.9286))
sketch8.addConstraint(Sketcher.Constraint("DistanceY", 9, 3, -1, 1, 46.9286))
sketch8.addConstraint(Sketcher.Constraint("DistanceY", -1, 1, 18, 3, 3.0714))
sketch8.addConstraint(Sketcher.Constraint("DistanceY", -1, 1, 27, 3, 53.0714))
sketch8.addConstraint(Sketcher.Constraint("DistanceY", -1, 1, 36, 3, 103.0714))
sketch8.addConstraint(Sketcher.Constraint("DistanceY", -1, 1, 45, 3, 153.0714))
sketch8.addConstraint(Sketcher.Constraint("DistanceY", -1, 1, 54, 3, 203.0714))
sketch8.addConstraint(Sketcher.Constraint("DistanceY", -1, 1, 63, 3, 253.0714))
pocket7 = body.newObject("PartDesign::Pocket", "Pocket006")
pocket7.Profile = sketch8
pocket7.Type = "ThroughAll"
pocket7.Reversed = True

doc.recompute()
